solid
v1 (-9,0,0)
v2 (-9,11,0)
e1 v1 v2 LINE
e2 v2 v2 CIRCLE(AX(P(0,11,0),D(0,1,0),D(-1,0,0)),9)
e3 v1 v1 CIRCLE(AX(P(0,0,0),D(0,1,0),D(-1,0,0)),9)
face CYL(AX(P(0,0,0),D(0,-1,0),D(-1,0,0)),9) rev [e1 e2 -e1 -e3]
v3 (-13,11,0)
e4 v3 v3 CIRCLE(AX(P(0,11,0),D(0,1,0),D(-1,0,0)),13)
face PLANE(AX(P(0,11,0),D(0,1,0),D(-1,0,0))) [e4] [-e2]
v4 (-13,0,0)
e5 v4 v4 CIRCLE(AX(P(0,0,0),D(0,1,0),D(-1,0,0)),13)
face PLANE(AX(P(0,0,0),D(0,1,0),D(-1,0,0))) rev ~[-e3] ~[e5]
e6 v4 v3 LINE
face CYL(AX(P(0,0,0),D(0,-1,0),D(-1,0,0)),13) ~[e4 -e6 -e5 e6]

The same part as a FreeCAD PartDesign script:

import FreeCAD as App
import Part
import Sketcher

doc = App.newDocument("Part")
body = doc.addObject("PartDesign::Body", "Body")

sketch1 = body.newObject("Sketcher::SketchObject", "Sketch")
sketch1.AttachmentSupport = (doc.getObject("XZ_Plane"), [""])
sketch1.MapMode = "FlatFace"
sketch1.addGeometry([
    Part.Circle(App.Vector(0, 0, 0), App.Vector(0, 0, 1), 13),
    Part.Circle(App.Vector(0, 0, 0), App.Vector(0, 0, 1), 9),
], False)
sketch1.addConstraint([
    Sketcher.Constraint("Coincident", 0, 3, -1, 1),
    Sketcher.Constraint("Coincident", 1, 3, -1, 1),
    Sketcher.Constraint("Diameter", 0, 26.0),
    Sketcher.Constraint("Diameter", 1, 18.0),
])
pad1 = body.newObject("PartDesign::Pad", "Pad")
pad1.Profile = sketch1
pad1.Length = 11
pad1.Reversed = True

doc.recompute()
